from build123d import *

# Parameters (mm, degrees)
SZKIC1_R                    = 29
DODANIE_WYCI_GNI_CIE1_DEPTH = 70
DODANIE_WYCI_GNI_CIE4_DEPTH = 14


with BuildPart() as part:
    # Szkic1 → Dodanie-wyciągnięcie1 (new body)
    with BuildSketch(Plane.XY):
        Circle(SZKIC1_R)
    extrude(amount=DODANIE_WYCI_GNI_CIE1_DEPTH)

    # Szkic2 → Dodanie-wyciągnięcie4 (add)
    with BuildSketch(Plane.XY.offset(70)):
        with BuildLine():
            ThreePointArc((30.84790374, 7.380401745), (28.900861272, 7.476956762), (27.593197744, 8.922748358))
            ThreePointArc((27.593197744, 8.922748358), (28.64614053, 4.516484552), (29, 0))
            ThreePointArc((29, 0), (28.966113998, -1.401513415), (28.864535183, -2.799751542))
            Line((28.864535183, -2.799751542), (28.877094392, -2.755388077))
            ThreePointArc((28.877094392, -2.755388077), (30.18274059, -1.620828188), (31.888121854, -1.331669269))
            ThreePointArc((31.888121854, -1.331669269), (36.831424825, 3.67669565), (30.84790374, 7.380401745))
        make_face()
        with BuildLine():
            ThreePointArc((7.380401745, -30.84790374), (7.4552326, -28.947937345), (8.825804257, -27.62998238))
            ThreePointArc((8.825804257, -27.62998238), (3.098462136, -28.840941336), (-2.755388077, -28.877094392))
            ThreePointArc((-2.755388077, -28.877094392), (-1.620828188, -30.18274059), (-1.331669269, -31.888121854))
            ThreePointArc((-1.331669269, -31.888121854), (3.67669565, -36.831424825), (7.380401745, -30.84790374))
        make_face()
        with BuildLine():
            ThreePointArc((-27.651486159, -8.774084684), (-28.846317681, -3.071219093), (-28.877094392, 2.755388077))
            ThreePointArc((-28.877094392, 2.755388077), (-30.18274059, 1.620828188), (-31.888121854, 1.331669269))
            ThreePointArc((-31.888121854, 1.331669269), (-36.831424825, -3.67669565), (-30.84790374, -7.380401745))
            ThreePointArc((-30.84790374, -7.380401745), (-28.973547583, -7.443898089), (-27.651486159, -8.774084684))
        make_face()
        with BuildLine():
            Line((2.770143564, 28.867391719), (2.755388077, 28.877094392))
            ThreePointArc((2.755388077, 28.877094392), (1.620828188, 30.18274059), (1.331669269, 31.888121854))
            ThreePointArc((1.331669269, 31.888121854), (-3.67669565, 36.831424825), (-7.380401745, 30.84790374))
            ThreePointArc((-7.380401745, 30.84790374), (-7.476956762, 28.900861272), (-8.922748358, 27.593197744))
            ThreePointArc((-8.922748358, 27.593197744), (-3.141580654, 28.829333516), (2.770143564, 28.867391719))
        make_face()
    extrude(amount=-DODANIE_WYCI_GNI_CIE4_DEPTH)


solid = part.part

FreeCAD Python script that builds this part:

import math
import FreeCAD as App
import Part
import Sketcher

V = App.Vector
Q = App.Units.Quantity

doc = App.newDocument("Part")
body = doc.addObject("PartDesign::Body", "Body")
body.AllowCompound = True

# Sketch on XY plane
sketch1 = body.newObject("Sketcher::SketchObject", "Sketch")
sketch1.AttachmentSupport = (doc.getObject("XY_Plane"), [""])
sketch1.MapMode = "FlatFace"
sketch1.addGeometry(Part.Circle(V(0, 0, 0), V(0, 0, 1), 29), False)
sketch1.addConstraint(Sketcher.Constraint("Coincident", 0, 3, -1, 1))
sketch1.addConstraint(Sketcher.Constraint("Diameter", 0, Q("58 mm")))
pad1 = body.newObject("PartDesign::Pad", "Pad")
pad1.Profile = sketch1
pad1.Length = 70

# Sketch on XY plane
sketch2 = body.newObject("Sketcher::SketchObject", "Sketch001")
sketch2.AttachmentSupport = (doc.getObject("XY_Plane"), [""])
sketch2.MapMode = "FlatFace"
sketch2.AttachmentOffset = App.Placement(V(0, 0, 70), App.Rotation())
sketch2.addGeometry(Part.ArcOfCircle(Part.Circle(V(29.99084, 9.777063, 0), V(0, 0, 1), 2.545298), math.radians(-160.388281), math.radians(-70.322582)), False)
sketch2.addGeometry(Part.ArcOfCircle(Part.Circle(V(0, 0, 0), V(0, 0, 1), 29), math.radians(0), math.radians(17.919531)), False)
sketch2.addGeometry(Part.ArcOfCircle(Part.Circle(V(0, 0, 0), V(0, 0, 1), 29), math.radians(-5.540144), math.radians(0)), False)
sketch2.addGeometry(Part.LineSegment(V(28.864535, -2.799752, 0), V(28.877094, -2.755388, 0)), False)
sketch2.addGeometry(Part.ArcOfCircle(Part.Circle(V(31.550374, -4.513239, 0), V(0, 0, 1), 3.199447), math.radians(83.940304), math.radians(146.672531)), False)
sketch2.addGeometry(Part.ArcOfCircle(Part.Circle(V(32.363162, 3.143187, 0), V(0, 0, 1), 4.5), math.radians(-96.059696), math.radians(109.677418)), False)
sketch2.addGeometry(Part.ArcOfCircle(Part.Circle(V(9.777063, -29.99084, 0), V(0, 0, 1), 2.545298), math.radians(111.94595), math.radians(199.677418)), False)
sketch2.addGeometry(Part.ArcOfCircle(Part.Circle(V(-0.006661, -0.0055, 0), V(0, 0, 1), 29.002146), math.radians(-95.438467), math.radians(-72.269194)), False)
sketch2.addGeometry(Part.ArcOfCircle(Part.Circle(V(-4.513239, -31.550374, 0), V(0, 0, 1), 3.199447), math.radians(-6.059696), math.radians(56.672531)), False)
sketch2.addGeometry(Part.ArcOfCircle(Part.Circle(V(3.143187, -32.363162, 0), V(0, 0, 1), 4.5), math.radians(173.940304), math.radians(379.677418)), False)
sketch2.addGeometry(Part.ArcOfCircle(Part.Circle(V(-0.006661, -0.0055, 0), V(0, 0, 1), 29.002146), math.radians(174.537399), math.radians(197.59836)), False)
sketch2.addGeometry(Part.ArcOfCircle(Part.Circle(V(-31.550374, 4.513239, 0), V(0, 0, 1), 3.199447), math.radians(-96.059696), math.radians(-33.327469)), False)
sketch2.addGeometry(Part.ArcOfCircle(Part.Circle(V(-32.363162, -3.143187, 0), V(0, 0, 1), 4.5), math.radians(83.940304), math.radians(289.677418)), False)
sketch2.addGeometry(Part.ArcOfCircle(Part.Circle(V(-29.99084, -9.777063, 0), V(0, 0, 1), 2.545298), math.radians(23.206827), math.radians(109.677418)), False)
sketch2.addGeometry(Part.LineSegment(V(2.770144, 28.867392, 0), V(2.755388, 28.877094, 0)), False)
sketch2.addGeometry(Part.ArcOfCircle(Part.Circle(V(4.513239, 31.550374, 0), V(0, 0, 1), 3.199447), math.radians(173.940304), math.radians(236.672531)), False)
sketch2.addGeometry(Part.ArcOfCircle(Part.Circle(V(-3.143187, 32.363162, 0), V(0, 0, 1), 4.5), math.radians(-6.059696), math.radians(199.677418)), False)
sketch2.addGeometry(Part.ArcOfCircle(Part.Circle(V(-9.777063, 29.99084, 0), V(0, 0, 1), 2.545298), math.radians(-70.388281), math.radians(19.677418)), False)
sketch2.addGeometry(Part.ArcOfCircle(Part.Circle(V(0, 0, 0), V(0, 0, 1), 29), math.radians(84.518624), math.radians(107.919531)), False)
sketch2.addConstraint(Sketcher.Constraint("Coincident", 0, 1, 1, 2))
sketch2.addConstraint(Sketcher.Constraint("Coincident", 1, 1, 2, 2))
sketch2.addConstraint(Sketcher.Constraint("Coincident", 2, 1, 3, 1))
sketch2.addConstraint(Sketcher.Constraint("Coincident", 3, 2, 4, 2))
sketch2.addConstraint(Sketcher.Constraint("Coincident", 4, 1, 5, 1))
sketch2.addConstraint(Sketcher.Constraint("Coincident", 5, 2, 0, 2))
sketch2.addConstraint(Sketcher.Constraint("Coincident", 6, 1, 7, 2))
sketch2.addConstraint(Sketcher.Constraint("Coincident", 7, 1, 8, 2))
sketch2.addConstraint(Sketcher.Constraint("Coincident", 8, 1, 9, 1))
sketch2.addConstraint(Sketcher.Constraint("Coincident", 9, 2, 6, 2))
sketch2.addConstraint(Sketcher.Constraint("Coincident", 10, 1, 11, 2))
sketch2.addConstraint(Sketcher.Constraint("Coincident", 11, 1, 12, 1))
sketch2.addConstraint(Sketcher.Constraint("Coincident", 12, 2, 13, 2))
sketch2.addConstraint(Sketcher.Constraint("Coincident", 13, 1, 10, 2))
sketch2.addConstraint(Sketcher.Constraint("Coincident", 14, 2, 15, 2))
sketch2.addConstraint(Sketcher.Constraint("Coincident", 15, 1, 16, 1))
sketch2.addConstraint(Sketcher.Constraint("Coincident", 16, 2, 17, 2))
sketch2.addConstraint(Sketcher.Constraint("Coincident", 17, 1, 18, 2))
sketch2.addConstraint(Sketcher.Constraint("Coincident", 18, 1, 14, 1))
sketch2.addConstraint(Sketcher.Constraint("Coincident", 1, 3, -1, 1))
sketch2.addConstraint(Sketcher.Constraint("Coincident", 2, 3, -1, 1))
sketch2.addConstraint(Sketcher.Constraint("Coincident", 18, 3, -1, 1))
sketch2.addConstraint(Sketcher.Constraint("Coincident", 10, 3, 7, 3))
sketch2.addConstraint(Sketcher.Constraint("PointOnObject", 1, 1, -1))
sketch2.addConstraint(Sketcher.Constraint("Radius", 1, Q("29 mm")))
sketch2.addConstraint(Sketcher.Constraint("Radius", 18, Q("29 mm")))
sketch2.addConstraint(Sketcher.Constraint("Radius", 5, Q("4.5 mm")))
sketch2.addConstraint(Sketcher.Constraint("Radius", 9, Q("4.5 mm")))
sketch2.addConstraint(Sketcher.Constraint("Radius", 12, Q("4.5 mm")))
sketch2.addConstraint(Sketcher.Constraint("Radius", 16, Q("4.5 mm")))
sketch2.addConstraint(Sketcher.Constraint("Radius", 0, Q("2.545298 mm")))
sketch2.addConstraint(Sketcher.Constraint("Radius", 6, Q("2.545298 mm")))
sketch2.addConstraint(Sketcher.Constraint("Radius", 13, Q("2.545298 mm")))
sketch2.addConstraint(Sketcher.Constraint("Radius", 17, Q("2.545298 mm")))
sketch2.addConstraint(Sketcher.Constraint("Radius", 4, Q("3.199447 mm")))
sketch2.addConstraint(Sketcher.Constraint("Radius", 7, Q("29.002146 mm")))
sketch2.addConstraint(Sketcher.Constraint("Radius", 8, Q("3.199447 mm")))
sketch2.addConstraint(Sketcher.Constraint("Radius", 10, Q("29.002146 mm")))
sketch2.addConstraint(Sketcher.Constraint("Radius", 11, Q("3.199447 mm")))
sketch2.addConstraint(Sketcher.Constraint("Radius", 15, Q("3.199447 mm")))
sketch2.addConstraint(Sketcher.Constraint("DistanceY", 7, 3, -1, 1, Q("0.0055 mm")))
sketch2.addConstraint(Sketcher.Constraint("DistanceY", -1, 1, 5, 2, Q("7.380402 mm")))
sketch2.addConstraint(Sketcher.Constraint("DistanceX", -1, 1, 9, 2, Q("7.380402 mm")))
sketch2.addConstraint(Sketcher.Constraint("DistanceY", 12, 2, -1, 1, Q("7.380402 mm")))
sketch2.addConstraint(Sketcher.Constraint("DistanceX", 16, 2, -1, 1, Q("7.380402 mm")))
sketch2.addConstraint(Sketcher.Constraint("DistanceY", 6, 3, 4, 3, Q("25.477601 mm")))
sketch2.addConstraint(Sketcher.Constraint("DistanceX", 6, 3, 5, 3, Q("22.586099 mm")))
sketch2.addConstraint(Sketcher.Constraint("DistanceX", 7, 3, 0, 3, Q("29.997501 mm")))
sketch2.addConstraint(Sketcher.Constraint("DistanceX", 12, 3, 10, 3, Q("32.356502 mm")))
sketch2.addConstraint(Sketcher.Constraint("DistanceX", 10, 3, 15, 3, Q("4.5199 mm")))
sketch2.addConstraint(Sketcher.Constraint("DistanceY", 2, 1, 0, 1, Q("11.7225 mm")))
sketch2.addConstraint(Sketcher.Constraint("Distance", 14, Q("0.01766 mm")))
sketch2.addConstraint(Sketcher.Constraint("DistanceX", -1, 1, 0, 3, Q("29.99084 mm")))
sketch2.addConstraint(Sketcher.Constraint("DistanceY", 4, 3, -1, 1, Q("4.513239 mm")))
sketch2.addConstraint(Sketcher.Constraint("DistanceX", 8, 3, -1, 1, Q("4.513239 mm")))
sketch2.addConstraint(Sketcher.Constraint("DistanceY", -1, 1, 11, 3, Q("4.513239 mm")))
sketch2.addConstraint(Sketcher.Constraint("DistanceX", 13, 3, -1, 1, Q("29.99084 mm")))
sketch2.addConstraint(Sketcher.Constraint("DistanceY", -1, 1, 17, 3, Q("29.99084 mm")))
sketch2.addConstraint(Sketcher.Constraint("DistanceY", -1, 1, 0, 1, Q("8.922748 mm")))
sketch2.addConstraint(Sketcher.Constraint("DistanceY", 3, 2, -1, 1, Q("2.755388 mm")))
sketch2.addConstraint(Sketcher.Constraint("DistanceX", -1, 1, 4, 1, Q("31.888122 mm")))
sketch2.addConstraint(Sketcher.Constraint("DistanceY", 4, 1, -1, 1, Q("1.331669 mm")))
sketch2.addConstraint(Sketcher.Constraint("DistanceX", 7, 1, -1, 1, Q("2.755388 mm")))
sketch2.addConstraint(Sketcher.Constraint("DistanceX", 8, 1, -1, 1, Q("1.331669 mm")))
sketch2.addConstraint(Sketcher.Constraint("DistanceY", -1, 1, 10, 1, Q("2.755388 mm")))
sketch2.addConstraint(Sketcher.Constraint("DistanceX", 11, 1, -1, 1, Q("31.888122 mm")))
sketch2.addConstraint(Sketcher.Constraint("DistanceX", -1, 1, 14, 2, Q("2.755388 mm")))
sketch2.addConstraint(Sketcher.Constraint("DistanceX", -1, 1, 15, 1, Q("1.331669 mm")))
sketch2.addConstraint(Sketcher.Constraint("DistanceY", -1, 1, 15, 1, Q("31.888122 mm")))
sketch2.addConstraint(Sketcher.Constraint("DistanceX", 17, 1, -1, 1, Q("8.922748 mm")))
pad2 = body.newObject("PartDesign::Pad", "Pad001")
pad2.Profile = sketch2
pad2.Length = 14
pad2.Reversed = True

doc.recompute()
